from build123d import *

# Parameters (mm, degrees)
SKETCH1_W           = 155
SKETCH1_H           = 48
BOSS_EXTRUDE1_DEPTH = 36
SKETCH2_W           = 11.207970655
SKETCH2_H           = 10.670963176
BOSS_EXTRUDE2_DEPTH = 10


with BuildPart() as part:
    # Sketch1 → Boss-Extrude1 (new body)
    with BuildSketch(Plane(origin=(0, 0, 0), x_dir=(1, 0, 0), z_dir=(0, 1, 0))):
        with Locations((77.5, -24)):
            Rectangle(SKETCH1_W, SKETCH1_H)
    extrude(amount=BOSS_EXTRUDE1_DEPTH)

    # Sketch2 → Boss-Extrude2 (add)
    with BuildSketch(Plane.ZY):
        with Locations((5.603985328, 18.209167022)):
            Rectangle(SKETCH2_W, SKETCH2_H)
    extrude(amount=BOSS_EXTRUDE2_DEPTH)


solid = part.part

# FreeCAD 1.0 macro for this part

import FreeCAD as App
import Part
import Sketcher
from FreeCAD import Vector
Q = App.Units.Quantity


def add_polygon(sketch, points):
    """Adds a closed chain of lines whose ends are joined by coincident constraints."""
    first, n = sketch.GeometryCount, len(points)
    for a, b in zip(points, points[1:] + points[:1]):
        sketch.addGeometry(Part.LineSegment(App.Vector(*a, 0), App.Vector(*b, 0)), False)
    for i in range(n):
        sketch.addConstraint(Sketcher.Constraint("Coincident", first + i, 2, first + (i + 1) % n, 1))

doc = App.newDocument("Part")
body = doc.addObject("PartDesign::Body", "Body")

# Sketch on XZ plane
sketch1 = body.newObject("Sketcher::SketchObject", "Sketch")
sketch1.AttachmentSupport = (doc.getObject("XZ_Plane"), [""])
sketch1.MapMode = "FlatFace"
add_polygon(sketch1, [(0, 0), (0, 48), (155, 48), (155, 0)])  # lines 0-3
sketch1.addConstraint([
    Sketcher.Constraint("Vertical", 0),
    Sketcher.Constraint("Horizontal", 1),
    Sketcher.Constraint("Vertical", 2),
    Sketcher.Constraint("Horizontal", 3),
    Sketcher.Constraint("Coincident", 3, 2, -1, 1),
    Sketcher.Constraint("DistanceX", 1, 1, 1, 2, Q("155 mm")),
    Sketcher.Constraint("DistanceY", 0, 1, 0, 2, Q("48 mm")),
])
pad1 = body.newObject("PartDesign::Pad", "Pad")
pad1.Profile = sketch1
pad1.Length = 36
pad1.Reversed = True

# Sketch on YZ plane
sketch2 = body.newObject("Sketcher::SketchObject", "Sketch001")
sketch2.AttachmentSupport = (doc.getObject("YZ_Plane"), [""])
sketch2.MapMode = "FlatFace"
add_polygon(sketch2, [(24, 0), (13, 0), (13, 11), (24, 11)])  # lines 0-3
sketch2.addConstraint([
    Sketcher.Constraint("Horizontal", 0),
    Sketcher.Constraint("Vertical", 1),
    Sketcher.Constraint("Horizontal", 2),
    Sketcher.Constraint("Vertical", 3),
    Sketcher.Constraint("PointOnObject", 0, 2, -1),
    Sketcher.Constraint("DistanceY", 1, 1, 1, 2, Q("11.207971 mm")),
    Sketcher.Constraint("DistanceX", 0, 2, 0, 1, Q("10.670963 mm")),
    Sketcher.Constraint("DistanceX", -1, 1, 2, 2, Q("23.544649 mm")),
])
pad2 = body.newObject("PartDesign::Pad", "Pad001")
pad2.Profile = sketch2
pad2.Length = 10
pad2.Reversed = True

doc.recompute()
